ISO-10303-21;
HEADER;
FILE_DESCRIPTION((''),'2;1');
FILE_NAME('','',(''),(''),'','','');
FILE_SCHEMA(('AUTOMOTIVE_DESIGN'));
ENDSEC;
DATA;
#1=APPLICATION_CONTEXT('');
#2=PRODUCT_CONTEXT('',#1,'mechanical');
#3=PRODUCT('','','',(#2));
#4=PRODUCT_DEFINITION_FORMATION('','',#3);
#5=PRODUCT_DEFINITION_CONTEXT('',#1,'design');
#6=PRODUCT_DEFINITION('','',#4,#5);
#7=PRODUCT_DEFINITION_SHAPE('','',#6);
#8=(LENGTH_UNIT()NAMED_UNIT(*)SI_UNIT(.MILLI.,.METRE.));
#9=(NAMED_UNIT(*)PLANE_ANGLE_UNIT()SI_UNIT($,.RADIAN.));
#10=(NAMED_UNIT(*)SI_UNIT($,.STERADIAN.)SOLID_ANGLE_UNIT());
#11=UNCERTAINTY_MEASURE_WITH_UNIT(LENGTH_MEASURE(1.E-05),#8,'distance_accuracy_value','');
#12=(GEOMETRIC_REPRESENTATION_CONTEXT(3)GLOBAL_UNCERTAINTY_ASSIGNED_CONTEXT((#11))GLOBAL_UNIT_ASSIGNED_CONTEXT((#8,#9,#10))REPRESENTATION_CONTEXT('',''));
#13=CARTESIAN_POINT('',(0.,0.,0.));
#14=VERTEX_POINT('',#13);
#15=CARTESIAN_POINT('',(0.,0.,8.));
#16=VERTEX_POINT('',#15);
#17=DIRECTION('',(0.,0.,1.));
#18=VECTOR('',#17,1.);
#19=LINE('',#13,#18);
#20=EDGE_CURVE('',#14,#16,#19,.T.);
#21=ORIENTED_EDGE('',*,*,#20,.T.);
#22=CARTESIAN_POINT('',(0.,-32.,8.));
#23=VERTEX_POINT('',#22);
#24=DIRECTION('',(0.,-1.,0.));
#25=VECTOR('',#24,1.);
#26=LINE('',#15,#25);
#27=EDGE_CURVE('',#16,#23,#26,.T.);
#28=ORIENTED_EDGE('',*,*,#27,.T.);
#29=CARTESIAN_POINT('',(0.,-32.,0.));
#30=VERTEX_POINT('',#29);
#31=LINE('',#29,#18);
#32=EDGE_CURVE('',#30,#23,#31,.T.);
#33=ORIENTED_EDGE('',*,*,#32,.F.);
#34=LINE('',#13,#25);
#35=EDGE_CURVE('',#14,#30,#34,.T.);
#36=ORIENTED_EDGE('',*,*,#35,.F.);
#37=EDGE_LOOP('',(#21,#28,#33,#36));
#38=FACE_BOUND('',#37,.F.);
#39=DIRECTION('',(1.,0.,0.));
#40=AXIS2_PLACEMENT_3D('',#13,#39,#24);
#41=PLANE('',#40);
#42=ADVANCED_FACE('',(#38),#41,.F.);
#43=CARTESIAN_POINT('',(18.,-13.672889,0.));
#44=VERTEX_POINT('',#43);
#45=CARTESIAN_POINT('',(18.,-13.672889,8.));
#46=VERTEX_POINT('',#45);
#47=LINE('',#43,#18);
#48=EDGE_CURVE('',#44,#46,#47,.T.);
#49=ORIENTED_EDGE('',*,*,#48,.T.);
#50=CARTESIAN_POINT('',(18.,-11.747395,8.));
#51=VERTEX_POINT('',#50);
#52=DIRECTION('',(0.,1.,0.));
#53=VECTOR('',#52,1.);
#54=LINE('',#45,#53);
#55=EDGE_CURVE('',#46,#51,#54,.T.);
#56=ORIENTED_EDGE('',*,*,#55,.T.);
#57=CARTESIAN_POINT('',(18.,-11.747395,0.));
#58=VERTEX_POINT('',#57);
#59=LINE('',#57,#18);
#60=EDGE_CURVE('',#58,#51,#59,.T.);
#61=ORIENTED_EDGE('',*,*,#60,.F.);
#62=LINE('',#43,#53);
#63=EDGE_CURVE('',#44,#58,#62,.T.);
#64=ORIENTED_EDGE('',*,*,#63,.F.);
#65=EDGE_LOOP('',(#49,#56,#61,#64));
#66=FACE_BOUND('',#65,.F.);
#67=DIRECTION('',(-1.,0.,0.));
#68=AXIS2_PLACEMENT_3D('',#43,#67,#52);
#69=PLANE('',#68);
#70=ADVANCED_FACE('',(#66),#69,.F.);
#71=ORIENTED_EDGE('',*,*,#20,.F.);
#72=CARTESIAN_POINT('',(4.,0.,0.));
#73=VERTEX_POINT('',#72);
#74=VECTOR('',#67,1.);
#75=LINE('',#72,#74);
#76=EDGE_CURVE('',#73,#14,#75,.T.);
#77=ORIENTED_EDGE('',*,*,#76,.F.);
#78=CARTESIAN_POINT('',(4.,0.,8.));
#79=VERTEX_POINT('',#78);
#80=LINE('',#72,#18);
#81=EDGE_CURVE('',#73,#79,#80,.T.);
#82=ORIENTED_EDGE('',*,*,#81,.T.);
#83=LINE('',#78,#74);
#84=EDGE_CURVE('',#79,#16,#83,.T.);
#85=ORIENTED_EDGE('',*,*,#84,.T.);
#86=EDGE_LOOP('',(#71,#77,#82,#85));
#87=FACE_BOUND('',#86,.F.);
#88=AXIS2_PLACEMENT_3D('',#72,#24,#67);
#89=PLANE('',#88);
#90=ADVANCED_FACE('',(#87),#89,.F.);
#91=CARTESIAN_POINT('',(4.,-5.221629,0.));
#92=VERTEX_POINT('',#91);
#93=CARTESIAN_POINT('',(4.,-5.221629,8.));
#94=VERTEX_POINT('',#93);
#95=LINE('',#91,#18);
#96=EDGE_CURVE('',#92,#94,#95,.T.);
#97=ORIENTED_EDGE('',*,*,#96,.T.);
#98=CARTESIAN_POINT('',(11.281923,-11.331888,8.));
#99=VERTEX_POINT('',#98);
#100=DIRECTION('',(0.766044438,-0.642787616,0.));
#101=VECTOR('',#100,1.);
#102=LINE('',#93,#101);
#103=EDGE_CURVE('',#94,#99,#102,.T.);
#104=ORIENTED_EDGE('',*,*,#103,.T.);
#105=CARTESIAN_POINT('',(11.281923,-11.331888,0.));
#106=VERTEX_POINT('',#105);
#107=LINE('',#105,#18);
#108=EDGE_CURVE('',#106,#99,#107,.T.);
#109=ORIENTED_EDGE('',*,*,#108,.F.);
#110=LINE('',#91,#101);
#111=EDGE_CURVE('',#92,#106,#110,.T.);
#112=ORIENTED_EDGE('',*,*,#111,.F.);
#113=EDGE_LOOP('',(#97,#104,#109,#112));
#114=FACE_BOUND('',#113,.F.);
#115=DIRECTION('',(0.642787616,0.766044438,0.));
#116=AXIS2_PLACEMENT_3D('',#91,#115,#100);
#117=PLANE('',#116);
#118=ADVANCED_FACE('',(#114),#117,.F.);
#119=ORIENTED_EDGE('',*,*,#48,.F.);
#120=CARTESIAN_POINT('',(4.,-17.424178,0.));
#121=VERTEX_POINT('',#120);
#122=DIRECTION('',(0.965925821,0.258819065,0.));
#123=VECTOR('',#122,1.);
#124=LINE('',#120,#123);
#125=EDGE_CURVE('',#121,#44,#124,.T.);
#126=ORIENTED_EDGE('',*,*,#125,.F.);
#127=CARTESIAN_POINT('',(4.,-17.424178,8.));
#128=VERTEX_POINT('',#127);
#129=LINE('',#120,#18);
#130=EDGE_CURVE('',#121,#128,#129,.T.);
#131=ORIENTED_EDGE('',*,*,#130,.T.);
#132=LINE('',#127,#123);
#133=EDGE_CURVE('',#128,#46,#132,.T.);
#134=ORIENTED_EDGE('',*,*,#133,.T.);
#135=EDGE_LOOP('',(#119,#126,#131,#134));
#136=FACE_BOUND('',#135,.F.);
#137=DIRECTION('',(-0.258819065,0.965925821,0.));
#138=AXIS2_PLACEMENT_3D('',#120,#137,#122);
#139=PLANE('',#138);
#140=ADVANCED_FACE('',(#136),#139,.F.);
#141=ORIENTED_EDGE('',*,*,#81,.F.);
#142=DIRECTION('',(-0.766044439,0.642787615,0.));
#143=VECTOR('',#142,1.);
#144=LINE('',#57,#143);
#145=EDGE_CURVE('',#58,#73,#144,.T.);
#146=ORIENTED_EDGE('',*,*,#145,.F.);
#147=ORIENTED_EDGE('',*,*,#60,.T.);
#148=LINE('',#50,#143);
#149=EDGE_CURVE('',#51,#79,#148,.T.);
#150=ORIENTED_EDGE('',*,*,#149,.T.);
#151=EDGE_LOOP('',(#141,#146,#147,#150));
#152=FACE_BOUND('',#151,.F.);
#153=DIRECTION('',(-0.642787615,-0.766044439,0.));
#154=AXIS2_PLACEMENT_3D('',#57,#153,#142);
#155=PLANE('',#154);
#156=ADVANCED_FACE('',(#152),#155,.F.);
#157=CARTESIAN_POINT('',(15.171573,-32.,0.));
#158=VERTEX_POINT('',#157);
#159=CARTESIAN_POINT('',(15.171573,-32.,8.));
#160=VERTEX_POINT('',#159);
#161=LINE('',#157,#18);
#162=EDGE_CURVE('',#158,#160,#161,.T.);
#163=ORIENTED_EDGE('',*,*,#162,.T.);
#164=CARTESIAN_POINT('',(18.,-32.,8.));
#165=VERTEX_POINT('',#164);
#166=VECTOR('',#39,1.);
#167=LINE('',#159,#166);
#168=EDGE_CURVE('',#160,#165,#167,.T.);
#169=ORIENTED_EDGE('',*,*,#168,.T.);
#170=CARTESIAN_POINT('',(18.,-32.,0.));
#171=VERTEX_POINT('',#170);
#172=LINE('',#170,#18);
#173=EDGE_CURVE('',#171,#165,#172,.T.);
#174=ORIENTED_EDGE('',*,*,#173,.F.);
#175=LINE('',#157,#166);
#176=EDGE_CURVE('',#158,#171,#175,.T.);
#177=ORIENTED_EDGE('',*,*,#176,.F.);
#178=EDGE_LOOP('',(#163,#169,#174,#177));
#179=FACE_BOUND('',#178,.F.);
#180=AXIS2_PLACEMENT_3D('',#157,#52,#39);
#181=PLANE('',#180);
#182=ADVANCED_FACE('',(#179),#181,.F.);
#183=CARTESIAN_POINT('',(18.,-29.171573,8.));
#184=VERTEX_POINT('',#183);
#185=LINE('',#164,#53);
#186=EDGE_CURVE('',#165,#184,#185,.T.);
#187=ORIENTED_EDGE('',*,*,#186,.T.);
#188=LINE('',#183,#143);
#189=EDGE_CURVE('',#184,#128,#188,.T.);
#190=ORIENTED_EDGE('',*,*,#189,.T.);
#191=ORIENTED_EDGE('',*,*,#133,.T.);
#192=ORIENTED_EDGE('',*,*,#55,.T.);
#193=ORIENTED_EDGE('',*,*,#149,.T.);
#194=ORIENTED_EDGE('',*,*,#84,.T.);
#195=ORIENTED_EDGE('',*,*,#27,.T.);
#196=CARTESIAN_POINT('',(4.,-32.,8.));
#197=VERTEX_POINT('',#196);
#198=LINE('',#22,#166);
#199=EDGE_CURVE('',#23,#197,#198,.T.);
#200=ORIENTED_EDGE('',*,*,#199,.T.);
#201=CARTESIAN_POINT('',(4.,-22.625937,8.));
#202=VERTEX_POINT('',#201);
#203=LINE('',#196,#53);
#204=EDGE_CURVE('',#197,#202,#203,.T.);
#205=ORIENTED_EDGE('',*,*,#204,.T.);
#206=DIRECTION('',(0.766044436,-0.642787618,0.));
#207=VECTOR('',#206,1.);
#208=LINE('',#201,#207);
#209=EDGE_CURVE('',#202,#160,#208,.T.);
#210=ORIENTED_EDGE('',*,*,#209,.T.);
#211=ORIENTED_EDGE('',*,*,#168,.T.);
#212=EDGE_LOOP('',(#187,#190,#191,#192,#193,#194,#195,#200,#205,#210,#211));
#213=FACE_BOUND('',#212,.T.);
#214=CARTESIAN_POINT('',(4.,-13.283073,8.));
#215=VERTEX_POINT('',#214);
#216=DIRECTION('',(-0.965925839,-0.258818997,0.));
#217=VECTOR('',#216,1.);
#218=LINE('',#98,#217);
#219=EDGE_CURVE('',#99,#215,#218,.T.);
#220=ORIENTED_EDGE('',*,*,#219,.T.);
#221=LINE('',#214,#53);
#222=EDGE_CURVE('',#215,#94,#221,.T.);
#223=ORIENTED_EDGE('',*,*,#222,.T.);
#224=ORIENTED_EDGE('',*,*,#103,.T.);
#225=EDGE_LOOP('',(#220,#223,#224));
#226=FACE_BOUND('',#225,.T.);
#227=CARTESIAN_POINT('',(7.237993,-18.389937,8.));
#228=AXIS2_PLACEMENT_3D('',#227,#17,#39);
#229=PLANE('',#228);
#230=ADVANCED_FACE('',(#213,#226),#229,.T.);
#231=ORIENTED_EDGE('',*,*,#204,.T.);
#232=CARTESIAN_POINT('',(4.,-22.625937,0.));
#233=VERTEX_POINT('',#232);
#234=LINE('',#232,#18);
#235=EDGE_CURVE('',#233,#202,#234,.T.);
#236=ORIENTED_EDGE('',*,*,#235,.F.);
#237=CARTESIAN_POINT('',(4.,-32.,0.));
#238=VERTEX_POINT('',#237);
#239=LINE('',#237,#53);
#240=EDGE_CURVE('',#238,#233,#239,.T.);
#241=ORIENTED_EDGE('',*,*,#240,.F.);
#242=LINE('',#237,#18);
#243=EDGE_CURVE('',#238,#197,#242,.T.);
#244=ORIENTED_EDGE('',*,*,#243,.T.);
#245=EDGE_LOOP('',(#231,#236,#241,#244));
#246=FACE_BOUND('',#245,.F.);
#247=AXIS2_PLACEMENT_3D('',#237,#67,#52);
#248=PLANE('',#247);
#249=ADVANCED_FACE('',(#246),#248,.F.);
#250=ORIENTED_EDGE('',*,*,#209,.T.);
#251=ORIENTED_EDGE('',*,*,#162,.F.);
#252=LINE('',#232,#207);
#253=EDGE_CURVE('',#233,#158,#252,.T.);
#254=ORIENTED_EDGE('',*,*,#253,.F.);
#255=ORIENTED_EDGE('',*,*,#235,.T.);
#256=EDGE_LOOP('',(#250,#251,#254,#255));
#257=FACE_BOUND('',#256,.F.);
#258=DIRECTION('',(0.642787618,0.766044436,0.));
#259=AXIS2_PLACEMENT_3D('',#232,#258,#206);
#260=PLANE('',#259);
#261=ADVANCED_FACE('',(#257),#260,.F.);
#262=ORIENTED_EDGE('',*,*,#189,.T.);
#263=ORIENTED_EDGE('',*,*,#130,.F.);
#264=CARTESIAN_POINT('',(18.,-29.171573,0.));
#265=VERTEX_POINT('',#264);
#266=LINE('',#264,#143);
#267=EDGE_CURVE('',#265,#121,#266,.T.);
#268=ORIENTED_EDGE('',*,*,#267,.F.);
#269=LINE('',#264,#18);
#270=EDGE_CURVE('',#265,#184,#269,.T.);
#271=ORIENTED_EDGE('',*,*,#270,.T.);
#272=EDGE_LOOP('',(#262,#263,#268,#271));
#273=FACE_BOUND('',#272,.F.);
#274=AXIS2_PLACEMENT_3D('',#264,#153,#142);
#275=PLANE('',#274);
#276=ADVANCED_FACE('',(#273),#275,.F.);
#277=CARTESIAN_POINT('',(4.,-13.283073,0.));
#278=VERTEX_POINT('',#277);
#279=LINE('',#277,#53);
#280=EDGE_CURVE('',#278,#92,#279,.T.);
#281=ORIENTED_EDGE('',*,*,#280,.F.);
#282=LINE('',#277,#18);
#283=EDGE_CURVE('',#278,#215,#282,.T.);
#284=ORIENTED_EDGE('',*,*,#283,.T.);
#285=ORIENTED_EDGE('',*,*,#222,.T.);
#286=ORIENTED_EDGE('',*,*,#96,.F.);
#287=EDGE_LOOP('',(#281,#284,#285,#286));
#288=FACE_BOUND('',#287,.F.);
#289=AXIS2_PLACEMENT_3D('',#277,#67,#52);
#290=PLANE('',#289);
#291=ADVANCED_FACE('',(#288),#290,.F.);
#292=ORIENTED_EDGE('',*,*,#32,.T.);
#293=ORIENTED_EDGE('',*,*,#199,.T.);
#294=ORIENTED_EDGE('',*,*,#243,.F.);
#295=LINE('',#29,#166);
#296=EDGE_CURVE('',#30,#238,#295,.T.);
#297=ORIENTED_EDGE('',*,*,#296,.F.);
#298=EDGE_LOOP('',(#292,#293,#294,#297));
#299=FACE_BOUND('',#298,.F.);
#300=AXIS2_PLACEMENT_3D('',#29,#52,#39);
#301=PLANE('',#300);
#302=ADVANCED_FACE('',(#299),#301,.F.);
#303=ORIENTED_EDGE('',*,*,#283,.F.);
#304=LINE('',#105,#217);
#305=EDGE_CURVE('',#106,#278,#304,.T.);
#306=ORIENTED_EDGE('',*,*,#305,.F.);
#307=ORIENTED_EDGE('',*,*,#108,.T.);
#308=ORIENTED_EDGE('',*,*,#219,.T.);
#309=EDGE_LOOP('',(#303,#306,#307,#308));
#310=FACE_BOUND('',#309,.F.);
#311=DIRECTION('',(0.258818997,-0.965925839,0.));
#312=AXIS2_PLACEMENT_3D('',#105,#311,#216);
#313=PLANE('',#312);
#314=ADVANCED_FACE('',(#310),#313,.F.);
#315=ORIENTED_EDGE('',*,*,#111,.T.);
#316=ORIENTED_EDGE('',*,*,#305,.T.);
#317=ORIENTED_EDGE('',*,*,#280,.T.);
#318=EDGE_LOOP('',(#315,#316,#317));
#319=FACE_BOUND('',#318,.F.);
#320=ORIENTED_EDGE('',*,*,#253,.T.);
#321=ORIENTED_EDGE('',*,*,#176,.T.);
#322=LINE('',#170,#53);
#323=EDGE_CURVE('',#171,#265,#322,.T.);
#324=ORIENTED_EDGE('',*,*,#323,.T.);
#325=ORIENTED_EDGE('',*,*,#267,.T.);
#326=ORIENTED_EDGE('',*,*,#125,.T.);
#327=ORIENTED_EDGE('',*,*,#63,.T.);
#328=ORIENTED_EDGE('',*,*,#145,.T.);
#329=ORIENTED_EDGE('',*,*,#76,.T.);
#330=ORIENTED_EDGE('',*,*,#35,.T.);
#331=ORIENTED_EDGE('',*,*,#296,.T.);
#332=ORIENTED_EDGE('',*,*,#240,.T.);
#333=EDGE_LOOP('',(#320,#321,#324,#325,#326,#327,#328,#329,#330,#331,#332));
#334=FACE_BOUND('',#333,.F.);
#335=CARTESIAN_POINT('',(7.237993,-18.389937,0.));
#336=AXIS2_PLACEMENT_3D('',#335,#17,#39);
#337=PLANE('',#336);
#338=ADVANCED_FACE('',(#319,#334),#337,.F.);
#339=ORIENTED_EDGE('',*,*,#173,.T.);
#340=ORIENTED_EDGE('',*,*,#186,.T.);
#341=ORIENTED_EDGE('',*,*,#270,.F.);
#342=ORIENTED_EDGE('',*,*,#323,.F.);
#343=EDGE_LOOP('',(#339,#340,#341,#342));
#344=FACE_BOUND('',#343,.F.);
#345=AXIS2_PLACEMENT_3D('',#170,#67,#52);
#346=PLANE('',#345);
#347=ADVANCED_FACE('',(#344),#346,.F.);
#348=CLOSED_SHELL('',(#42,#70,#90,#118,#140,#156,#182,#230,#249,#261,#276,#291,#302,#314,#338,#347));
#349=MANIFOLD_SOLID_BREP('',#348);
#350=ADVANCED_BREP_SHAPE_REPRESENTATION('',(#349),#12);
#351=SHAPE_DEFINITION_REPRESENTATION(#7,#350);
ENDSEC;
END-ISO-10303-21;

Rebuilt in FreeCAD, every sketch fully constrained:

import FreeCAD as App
import Part
import Sketcher

V = App.Vector
Q = App.Units.Quantity


def add_polygon(sketch, points):
    """Adds a closed chain of lines whose ends are joined by coincident constraints."""
    first, n = sketch.GeometryCount, len(points)
    for a, b in zip(points, points[1:] + points[:1]):
        sketch.addGeometry(Part.LineSegment(App.Vector(*a, 0), App.Vector(*b, 0)), False)
    for i in range(n):
        sketch.addConstraint(Sketcher.Constraint("Coincident", first + i, 2, first + (i + 1) % n, 1))

doc = App.newDocument("Part")
body = doc.addObject("PartDesign::Body", "Body")

sketch1 = doc.addObject("Sketcher::SketchObject", "Sketch")
body.addObject(sketch1)
sketch1.AttachmentSupport = (doc.XY_Plane, [""])
sketch1.MapMode = "FlatFace"
add_polygon(sketch1, [(4, 0), (0, 0), (0, -32), (4, -32), (4, -22.6), (15.2, -32), (18, -32), (18, -29.2), (4, -17.4), (18, -13.7), (18, -11.7)])
add_polygon(sketch1, [(11.3, -11.3), (4, -13.3), (4, -5.2)])
sketch1.addConstraint([
    Sketcher.Constraint("Horizontal", 0),
    Sketcher.Constraint("Vertical", 1),
    Sketcher.Constraint("Horizontal", 2),
    Sketcher.Constraint("Vertical", 3),
    Sketcher.Constraint("Horizontal", 5),
    Sketcher.Constraint("Vertical", 6),
    Sketcher.Constraint("Vertical", 9),
    Sketcher.Constraint("Vertical", 12),
    Sketcher.Constraint("Coincident", 0, 2, -1, 1),
    Sketcher.Constraint("Parallel", 4, 7),
    Sketcher.Constraint("Parallel", 7, 10),
    Sketcher.Constraint("Parallel", 8, 11),
    Sketcher.Constraint("Parallel", 10, 13),
    Sketcher.Constraint("Horizontal", 2, 2, 4, 2),
    Sketcher.Constraint("Vertical", 3, 2, 7, 2),
    Sketcher.Constraint("Vertical", 6, 2, 8, 2),
    Sketcher.Constraint("Vertical", 7, 2, 10, 2),
    Sketcher.Constraint("Vertical", 10, 2, 11, 2),
    Sketcher.Constraint("Equal", 5, 6),
    Sketcher.Constraint("DistanceX", 0, 2, 0, 1, 4.0),
    Sketcher.Constraint("DistanceY", 1, 2, 1, 1, 32.0),
    Sketcher.Constraint("Angle", 4, Q("-40.000001 deg")),
    Sketcher.Constraint("Angle", 8, Q("15.000001 deg")),
    Sketcher.Constraint("DistanceX", -1, 1, 5, 2, 18.0),
    Sketcher.Constraint("DistanceY", 8, 2, 13, 2, 2.341001),
    Sketcher.Constraint("Distance", 11, 7.538801),
    Sketcher.Constraint("DistanceX", 5, 1, 5, 2, 2.828427),
])
pad1 = doc.addObject("PartDesign::Pad", "Pad")
body.addObject(pad1)
pad1.Profile = sketch1
pad1.Length = 8

doc.recompute()
